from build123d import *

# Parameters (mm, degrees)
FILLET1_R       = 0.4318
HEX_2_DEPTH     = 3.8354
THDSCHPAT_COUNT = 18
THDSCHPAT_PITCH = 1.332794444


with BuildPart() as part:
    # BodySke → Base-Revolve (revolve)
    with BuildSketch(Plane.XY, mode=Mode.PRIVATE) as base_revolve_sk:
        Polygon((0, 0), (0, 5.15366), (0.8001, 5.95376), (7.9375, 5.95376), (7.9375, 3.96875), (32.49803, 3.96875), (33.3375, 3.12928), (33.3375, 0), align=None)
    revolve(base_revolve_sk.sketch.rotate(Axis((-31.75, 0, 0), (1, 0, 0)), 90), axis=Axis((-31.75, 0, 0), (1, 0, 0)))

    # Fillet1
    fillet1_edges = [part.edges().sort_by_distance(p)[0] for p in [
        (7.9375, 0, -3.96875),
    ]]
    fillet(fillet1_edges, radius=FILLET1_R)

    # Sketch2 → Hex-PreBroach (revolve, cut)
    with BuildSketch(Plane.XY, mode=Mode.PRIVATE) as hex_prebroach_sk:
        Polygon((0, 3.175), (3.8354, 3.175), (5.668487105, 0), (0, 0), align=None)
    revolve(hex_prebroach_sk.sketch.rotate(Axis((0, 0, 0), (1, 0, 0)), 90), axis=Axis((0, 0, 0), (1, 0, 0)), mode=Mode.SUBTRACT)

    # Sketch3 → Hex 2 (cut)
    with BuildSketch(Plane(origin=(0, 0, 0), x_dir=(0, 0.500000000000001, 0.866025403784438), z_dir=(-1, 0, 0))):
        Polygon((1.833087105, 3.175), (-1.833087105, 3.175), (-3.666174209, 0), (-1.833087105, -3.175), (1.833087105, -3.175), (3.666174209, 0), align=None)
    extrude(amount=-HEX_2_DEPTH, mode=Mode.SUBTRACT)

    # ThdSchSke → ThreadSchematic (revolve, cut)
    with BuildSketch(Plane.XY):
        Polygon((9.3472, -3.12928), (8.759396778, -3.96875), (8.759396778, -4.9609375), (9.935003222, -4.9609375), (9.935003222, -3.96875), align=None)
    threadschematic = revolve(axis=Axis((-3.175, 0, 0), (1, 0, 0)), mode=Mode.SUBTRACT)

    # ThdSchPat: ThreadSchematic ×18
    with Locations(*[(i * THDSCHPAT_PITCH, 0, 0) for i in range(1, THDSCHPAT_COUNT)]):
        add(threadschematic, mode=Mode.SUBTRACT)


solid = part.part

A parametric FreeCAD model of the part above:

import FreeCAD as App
import Part
import Sketcher
from FreeCAD import Vector
Q = App.Units.Quantity


def edges_at(feature, points):
    """Names of the edges that pass closest to the given points."""
    edges = feature.Shape.Edges
    near = lambda p: min(range(len(edges)), key=lambda i: edges[i].distToShape(Part.Vertex(*p))[0])
    return sorted({f"Edge{near(p) + 1}" for p in points})


def add_polygon(sketch, points):
    """Adds a closed chain of lines whose ends are joined by coincident constraints."""
    first, n = sketch.GeometryCount, len(points)
    for a, b in zip(points, points[1:] + points[:1]):
        sketch.addGeometry(Part.LineSegment(App.Vector(*a, 0), App.Vector(*b, 0)), False)
    for i in range(n):
        sketch.addConstraint(Sketcher.Constraint("Coincident", first + i, 2, first + (i + 1) % n, 1))

doc = App.newDocument("Part")
body = doc.addObject("PartDesign::Body", "Body")

# Sketch on XY plane
sketch1 = doc.addObject("Sketcher::SketchObject", "Sketch")
body.addObject(sketch1)
sketch1.AttachmentSupport = (doc.XY_Plane, [""])
sketch1.MapMode = "FlatFace"
add_polygon(sketch1, [(0, 5.2), (0, 0), (33.3, 0), (33.3, 3.1), (32.5, 4), (7.9, 4), (7.9, 6), (0.8, 6)])  # lines 0-7
sketch1.addConstraint([
    Sketcher.Constraint("Vertical", 0),
    Sketcher.Constraint("Horizontal", 1),
    Sketcher.Constraint("Vertical", 2),
    Sketcher.Constraint("Horizontal", 4),
    Sketcher.Constraint("Vertical", 5),
    Sketcher.Constraint("Horizontal", 6),
    Sketcher.Constraint("Coincident", 0, 2, -1, 1),
    Sketcher.Constraint("Perpendicular", 3, 7),
    Sketcher.Constraint("Angle", 3, Q("135 deg")),
    Sketcher.Constraint("DistanceX", 4, 2, 2, 2, Q("1 in")),
    Sketcher.Constraint("DistanceX", 1, 1, 1, 2, Q("1.3125 in")),
    Sketcher.Constraint("DistanceX", 6, 2, 6, 1, Q("0.281 in")),
    Sketcher.Constraint("DistanceY", 0, 2, 0, 1, Q("0.2029 in")),
    Sketcher.Constraint("DistanceY", 2, 1, 2, 2, Q("0.1232 in")),
    Sketcher.Constraint("DistanceY", -1, 1, 3, 2, Q("0.15625 in")),
])
revolution = doc.addObject("PartDesign::Revolution", "Revolution")
body.addObject(revolution)
revolution.Profile = sketch1
revolution.ReferenceAxis = (sketch1, ["H_Axis"])
revolution.Angle = 360
doc.recompute()

fillet = doc.addObject("PartDesign::Fillet", "Fillet")
body.addObject(fillet)
fillet.Base = (revolution, edges_at(revolution, [(7.938, 0, -3.969)]))
fillet.Radius = Q("0.017 in")

# Sketch on XY plane
sketch2 = doc.addObject("Sketcher::SketchObject", "Sketch001")
body.addObject(sketch2)
sketch2.AttachmentSupport = (doc.XY_Plane, [""])
sketch2.MapMode = "FlatFace"
add_polygon(sketch2, [(3.8, 3.2), (0, 3.2), (0, 0), (5.7, 0)])  # lines 0-3
sketch2.addConstraint([
    Sketcher.Constraint("Horizontal", 0),
    Sketcher.Constraint("Vertical", 1),
    Sketcher.Constraint("Horizontal", 2),
    Sketcher.Constraint("Coincident", 1, 2, -1, 1),
    Sketcher.Constraint("Angle", 3, Q("120 deg")),
    Sketcher.Constraint("DistanceX", 0, 2, 0, 1, Q("0.151 in")),
    Sketcher.Constraint("DistanceY", 1, 2, 1, 1, Q("0.125 in")),
])
groove = doc.addObject("PartDesign::Groove", "Groove")
body.addObject(groove)
groove.Profile = sketch2
groove.ReferenceAxis = (sketch2, ["H_Axis"])
groove.Angle = 360

# Sketch on YZ plane
sketch3 = doc.addObject("Sketcher::SketchObject", "Sketch002")
body.addObject(sketch3)
sketch3.AttachmentSupport = (doc.YZ_Plane, [""])
sketch3.MapMode = "FlatFace"
add_polygon(sketch3, [(3.7, 0), (1.8, -3.2), (-1.8, -3.2), (-3.7, 0), (-1.8, 3.2), (1.8, 3.2)])  # lines 0-5
sketch3.addConstraint([
    Sketcher.Constraint("Horizontal", 1),
    Sketcher.Constraint("Horizontal", 4),
    Sketcher.Constraint("Symmetric", 0, 2, 3, 2, -1, 1),
    Sketcher.Constraint("Symmetric", 2, 2, 5, 2, -1, 1),
    Sketcher.Constraint("PointOnObject", 2, 2, -1),
    Sketcher.Constraint("Parallel", 2, 5),
    Sketcher.Constraint("Vertical", 1, 2, 3, 2),
    Sketcher.Constraint("Angle", 0, Q("-120 deg")),
    Sketcher.Constraint("DistanceY", 1, 2, 3, 2, Q("0.25 in")),
    Sketcher.Constraint("DistanceX", 1, 2, 1, 1, 3.666174),
])
pocket1 = doc.addObject("PartDesign::Pocket", "Pocket")
body.addObject(pocket1)
pocket1.Profile = sketch3
pocket1.Length = Q("0.151 in")
pocket1.Reversed = True

# Sketch on XY plane
sketch4 = doc.addObject("Sketcher::SketchObject", "Sketch003")
body.addObject(sketch4)
sketch4.AttachmentSupport = (doc.XY_Plane, [""])
sketch4.MapMode = "FlatFace"
add_polygon(sketch4, [(9.3, -3.1), (8.8, -4), (8.8, -5), (9.9, -5), (9.9, -4)])  # lines 0-4
sketch4.addConstraint([
    Sketcher.Constraint("Vertical", 1),
    Sketcher.Constraint("Horizontal", 2),
    Sketcher.Constraint("Vertical", 3),
    Sketcher.Constraint("Horizontal", 0, 2, 3, 2),
    Sketcher.Constraint("Equal", 0, 4),
    Sketcher.Constraint("Angle", 0, Q("-125 deg")),
    Sketcher.Constraint("DistanceY", 0, 2, -1, 1, Q("0.15625 in")),
    Sketcher.Constraint("DistanceX", -1, 1, 4, 2, Q("0.368 in")),
    Sketcher.Constraint("DistanceY", 4, 2, -1, 1, Q("0.1232 in")),
    Sketcher.Constraint("DistanceY", 1, 2, 1, 1, 0.992188),
])
groove2 = doc.addObject("PartDesign::Groove", "Groove001")
body.addObject(groove2)
groove2.Profile = sketch4
groove2.ReferenceAxis = (sketch4, ["H_Axis"])
groove2.Angle = 360
doc.recompute()

linearpattern = doc.addObject("PartDesign::LinearPattern", "LinearPattern")
body.addObject(linearpattern)
linearpattern.Originals = [groove2]
linearpattern.Direction = (doc.X_Axis, [""])
linearpattern.Mode = "offset"
linearpattern.Offset = 1.332794
linearpattern.Occurrences = 18
body.Tip = linearpattern

doc.recompute()
